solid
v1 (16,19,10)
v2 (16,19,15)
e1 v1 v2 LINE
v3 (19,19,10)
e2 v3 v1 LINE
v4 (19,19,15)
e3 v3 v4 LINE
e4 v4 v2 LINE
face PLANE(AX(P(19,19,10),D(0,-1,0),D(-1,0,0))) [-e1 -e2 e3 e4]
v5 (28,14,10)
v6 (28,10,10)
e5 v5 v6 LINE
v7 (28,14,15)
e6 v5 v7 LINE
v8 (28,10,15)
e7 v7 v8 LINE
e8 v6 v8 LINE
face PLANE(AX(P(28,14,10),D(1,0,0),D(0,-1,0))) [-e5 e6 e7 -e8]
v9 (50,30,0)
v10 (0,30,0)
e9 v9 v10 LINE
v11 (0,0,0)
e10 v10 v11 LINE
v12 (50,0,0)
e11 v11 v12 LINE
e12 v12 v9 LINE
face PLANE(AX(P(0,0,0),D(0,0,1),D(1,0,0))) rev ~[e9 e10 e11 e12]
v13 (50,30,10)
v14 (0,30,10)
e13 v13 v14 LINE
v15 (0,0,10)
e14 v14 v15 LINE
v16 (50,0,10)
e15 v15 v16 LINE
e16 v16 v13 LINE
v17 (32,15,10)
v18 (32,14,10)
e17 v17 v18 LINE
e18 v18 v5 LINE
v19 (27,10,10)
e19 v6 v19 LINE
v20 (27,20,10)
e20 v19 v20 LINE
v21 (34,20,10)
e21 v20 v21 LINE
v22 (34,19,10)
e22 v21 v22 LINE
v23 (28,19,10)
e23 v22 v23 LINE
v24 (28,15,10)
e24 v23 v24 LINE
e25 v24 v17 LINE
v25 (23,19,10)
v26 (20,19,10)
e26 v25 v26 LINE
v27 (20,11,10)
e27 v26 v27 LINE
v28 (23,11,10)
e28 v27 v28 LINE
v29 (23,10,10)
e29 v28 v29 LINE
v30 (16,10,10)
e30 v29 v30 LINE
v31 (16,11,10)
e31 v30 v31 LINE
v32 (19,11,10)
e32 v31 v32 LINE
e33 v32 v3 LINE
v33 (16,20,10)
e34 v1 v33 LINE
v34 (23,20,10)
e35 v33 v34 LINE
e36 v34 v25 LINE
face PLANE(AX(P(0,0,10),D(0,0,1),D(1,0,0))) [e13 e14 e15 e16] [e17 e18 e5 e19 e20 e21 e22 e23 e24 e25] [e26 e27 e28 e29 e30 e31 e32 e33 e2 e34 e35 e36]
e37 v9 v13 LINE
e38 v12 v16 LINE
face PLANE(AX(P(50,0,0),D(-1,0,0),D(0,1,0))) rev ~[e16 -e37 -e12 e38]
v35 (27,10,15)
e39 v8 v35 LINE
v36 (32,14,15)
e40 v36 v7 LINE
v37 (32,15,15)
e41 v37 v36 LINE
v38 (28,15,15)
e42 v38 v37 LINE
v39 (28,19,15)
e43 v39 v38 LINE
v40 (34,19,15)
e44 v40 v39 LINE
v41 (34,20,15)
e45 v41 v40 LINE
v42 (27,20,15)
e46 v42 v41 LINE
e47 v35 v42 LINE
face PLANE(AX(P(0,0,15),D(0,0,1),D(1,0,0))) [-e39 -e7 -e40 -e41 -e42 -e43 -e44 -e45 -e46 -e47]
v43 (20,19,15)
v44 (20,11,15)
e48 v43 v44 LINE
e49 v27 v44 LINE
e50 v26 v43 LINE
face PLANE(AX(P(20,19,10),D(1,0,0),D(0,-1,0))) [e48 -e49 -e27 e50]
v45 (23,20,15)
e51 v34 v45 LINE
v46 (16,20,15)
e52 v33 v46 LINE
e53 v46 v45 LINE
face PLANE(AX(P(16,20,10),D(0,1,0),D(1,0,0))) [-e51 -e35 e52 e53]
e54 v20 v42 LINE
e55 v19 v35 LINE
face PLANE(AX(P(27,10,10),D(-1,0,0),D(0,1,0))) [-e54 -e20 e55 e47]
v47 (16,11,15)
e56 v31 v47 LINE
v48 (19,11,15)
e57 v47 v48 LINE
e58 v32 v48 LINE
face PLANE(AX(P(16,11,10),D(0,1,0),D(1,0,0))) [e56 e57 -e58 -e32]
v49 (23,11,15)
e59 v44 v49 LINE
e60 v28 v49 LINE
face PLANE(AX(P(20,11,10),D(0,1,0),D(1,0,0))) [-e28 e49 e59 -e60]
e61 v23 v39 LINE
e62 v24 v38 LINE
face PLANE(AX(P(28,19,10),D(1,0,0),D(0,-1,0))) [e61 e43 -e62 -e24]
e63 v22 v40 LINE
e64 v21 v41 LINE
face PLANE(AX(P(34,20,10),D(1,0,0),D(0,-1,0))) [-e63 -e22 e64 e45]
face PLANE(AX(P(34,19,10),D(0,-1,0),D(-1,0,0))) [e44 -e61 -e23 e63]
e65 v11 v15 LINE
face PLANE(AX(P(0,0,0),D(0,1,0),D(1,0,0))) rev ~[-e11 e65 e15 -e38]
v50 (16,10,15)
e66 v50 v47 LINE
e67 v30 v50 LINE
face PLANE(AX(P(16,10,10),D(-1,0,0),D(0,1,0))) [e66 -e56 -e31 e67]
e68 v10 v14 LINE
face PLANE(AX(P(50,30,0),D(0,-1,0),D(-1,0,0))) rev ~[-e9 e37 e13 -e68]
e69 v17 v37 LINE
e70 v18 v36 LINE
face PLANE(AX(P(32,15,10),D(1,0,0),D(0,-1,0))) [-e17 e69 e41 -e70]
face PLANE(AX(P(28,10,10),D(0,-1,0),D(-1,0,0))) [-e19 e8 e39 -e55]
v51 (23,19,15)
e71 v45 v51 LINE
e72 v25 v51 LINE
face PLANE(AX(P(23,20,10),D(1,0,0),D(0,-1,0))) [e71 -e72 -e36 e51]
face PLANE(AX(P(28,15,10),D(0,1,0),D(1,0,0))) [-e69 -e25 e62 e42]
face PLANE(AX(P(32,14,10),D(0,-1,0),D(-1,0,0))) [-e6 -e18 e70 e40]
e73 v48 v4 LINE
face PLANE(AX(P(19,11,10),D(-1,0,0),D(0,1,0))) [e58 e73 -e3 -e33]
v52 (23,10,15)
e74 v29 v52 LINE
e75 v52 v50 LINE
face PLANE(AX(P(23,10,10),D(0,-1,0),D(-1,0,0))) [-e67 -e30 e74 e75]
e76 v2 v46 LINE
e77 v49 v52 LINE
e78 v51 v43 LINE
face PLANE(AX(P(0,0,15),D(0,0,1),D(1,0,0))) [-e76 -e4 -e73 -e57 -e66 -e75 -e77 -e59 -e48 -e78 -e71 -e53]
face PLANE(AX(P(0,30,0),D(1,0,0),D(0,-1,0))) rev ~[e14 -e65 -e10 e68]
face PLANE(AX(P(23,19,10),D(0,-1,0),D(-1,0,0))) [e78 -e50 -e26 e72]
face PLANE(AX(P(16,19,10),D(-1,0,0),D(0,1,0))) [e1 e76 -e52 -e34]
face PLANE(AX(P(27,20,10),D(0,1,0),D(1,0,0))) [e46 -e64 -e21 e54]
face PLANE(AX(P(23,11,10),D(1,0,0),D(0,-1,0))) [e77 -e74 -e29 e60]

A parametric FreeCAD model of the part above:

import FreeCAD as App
import Part
import Sketcher
from FreeCAD import Vector

doc = App.newDocument("Part")
body = doc.addObject("PartDesign::Body", "Body")

# Sketch on XY plane
sketch1 = body.newObject("Sketcher::SketchObject", "Sketch")
sketch1.AttachmentSupport = (doc.getObject("XY_Plane"), [""])
sketch1.MapMode = "FlatFace"
sketch1.addGeometry([
    Part.LineSegment(Vector(0, 30, 0), Vector(0, 0, 0)),
    Part.LineSegment(Vector(0, 0, 0), Vector(50, 0, 0)),
    Part.LineSegment(Vector(50, 0, 0), Vector(50, 30, 0)),
    Part.LineSegment(Vector(50, 30, 0), Vector(0, 30, 0)),
], False)
sketch1.addConstraint([
    Sketcher.Constraint("Coincident", 0, 2, 1, 1),
    Sketcher.Constraint("Coincident", 1, 2, 2, 1),
    Sketcher.Constraint("Coincident", 2, 2, 3, 1),
    Sketcher.Constraint("Coincident", 3, 2, 0, 1),
    Sketcher.Constraint("Vertical", 0),
    Sketcher.Constraint("Horizontal", 1),
    Sketcher.Constraint("Vertical", 2),
    Sketcher.Constraint("Horizontal", 3),
    Sketcher.Constraint("Coincident", 0, 2, -1, 1),
    Sketcher.Constraint("DistanceX", 1, 1, 1, 2, 50.0),
    Sketcher.Constraint("DistanceY", 0, 2, 0, 1, 30.0),
])
pad1 = body.newObject("PartDesign::Pad", "Pad")
pad1.Profile = sketch1
pad1.Length = 10

# Sketch on XY plane
sketch2 = body.newObject("Sketcher::SketchObject", "Sketch001")
sketch2.AttachmentSupport = (doc.getObject("XY_Plane"), [""])
sketch2.MapMode = "FlatFace"
sketch2.AttachmentOffset = App.Placement(Vector(0, 0, 10), App.Rotation())
sketch2.addGeometry([
    Part.LineSegment(Vector(23, 20, 0), Vector(16, 20, 0)),  # 0
    Part.LineSegment(Vector(16, 20, 0), Vector(16, 19, 0)),  # 1
    Part.LineSegment(Vector(16, 19, 0), Vector(19, 19, 0)),  # 2
    Part.LineSegment(Vector(19, 19, 0), Vector(19, 11, 0)),  # 3
    Part.LineSegment(Vector(19, 11, 0), Vector(16, 11, 0)),  # 4
    Part.LineSegment(Vector(16, 11, 0), Vector(16, 10, 0)),  # 5
    Part.LineSegment(Vector(16, 10, 0), Vector(23, 10, 0)),  # 6
    Part.LineSegment(Vector(23, 10, 0), Vector(23, 11, 0)),  # 7
    Part.LineSegment(Vector(23, 11, 0), Vector(20, 11, 0)),  # 8
    Part.LineSegment(Vector(20, 11, 0), Vector(20, 19, 0)),  # 9
    Part.LineSegment(Vector(20, 19, 0), Vector(23, 19, 0)),  # 10
    Part.LineSegment(Vector(23, 19, 0), Vector(23, 20, 0)),  # 11
    Part.LineSegment(Vector(27, 20, 0), Vector(27, 10, 0)),  # 12
    Part.LineSegment(Vector(27, 10, 0), Vector(28, 10, 0)),  # 13
    Part.LineSegment(Vector(28, 10, 0), Vector(28, 14, 0)),  # 14
    Part.LineSegment(Vector(28, 14, 0), Vector(32, 14, 0)),  # 15
    Part.LineSegment(Vector(32, 14, 0), Vector(32, 15, 0)),  # 16
    Part.LineSegment(Vector(32, 15, 0), Vector(28, 15, 0)),  # 17
    Part.LineSegment(Vector(28, 15, 0), Vector(28, 19, 0)),  # 18
    Part.LineSegment(Vector(28, 19, 0), Vector(34, 19, 0)),  # 19
    Part.LineSegment(Vector(34, 19, 0), Vector(34, 20, 0)),  # 20
    Part.LineSegment(Vector(34, 20, 0), Vector(27, 20, 0)),  # 21
], False)
sketch2.addConstraint([
    Sketcher.Constraint("Coincident", 0, 2, 1, 1),
    Sketcher.Constraint("Coincident", 1, 2, 2, 1),
    Sketcher.Constraint("Coincident", 2, 2, 3, 1),
    Sketcher.Constraint("Coincident", 3, 2, 4, 1),
    Sketcher.Constraint("Coincident", 4, 2, 5, 1),
    Sketcher.Constraint("Coincident", 5, 2, 6, 1),
    Sketcher.Constraint("Coincident", 6, 2, 7, 1),
    Sketcher.Constraint("Coincident", 7, 2, 8, 1),
    Sketcher.Constraint("Coincident", 8, 2, 9, 1),
    Sketcher.Constraint("Coincident", 9, 2, 10, 1),
    Sketcher.Constraint("Coincident", 10, 2, 11, 1),
    Sketcher.Constraint("Coincident", 11, 2, 0, 1),
    Sketcher.Constraint("Coincident", 12, 2, 13, 1),
    Sketcher.Constraint("Coincident", 13, 2, 14, 1),
    Sketcher.Constraint("Coincident", 14, 2, 15, 1),
    Sketcher.Constraint("Coincident", 15, 2, 16, 1),
    Sketcher.Constraint("Coincident", 16, 2, 17, 1),
    Sketcher.Constraint("Coincident", 17, 2, 18, 1),
    Sketcher.Constraint("Coincident", 18, 2, 19, 1),
    Sketcher.Constraint("Coincident", 19, 2, 20, 1),
    Sketcher.Constraint("Coincident", 20, 2, 21, 1),
    Sketcher.Constraint("Coincident", 21, 2, 12, 1),
    Sketcher.Constraint("Horizontal", 0),
    Sketcher.Constraint("Vertical", 1),
    Sketcher.Constraint("Horizontal", 2),
    Sketcher.Constraint("Vertical", 3),
    Sketcher.Constraint("Horizontal", 4),
    Sketcher.Constraint("Vertical", 5),
    Sketcher.Constraint("Horizontal", 6),
    Sketcher.Constraint("Vertical", 7),
    Sketcher.Constraint("Horizontal", 8),
    Sketcher.Constraint("Vertical", 9),
    Sketcher.Constraint("Horizontal", 10),
    Sketcher.Constraint("Vertical", 11),
    Sketcher.Constraint("Vertical", 12),
    Sketcher.Constraint("Horizontal", 13),
    Sketcher.Constraint("Vertical", 14),
    Sketcher.Constraint("Horizontal", 15),
    Sketcher.Constraint("Vertical", 16),
    Sketcher.Constraint("Horizontal", 17),
    Sketcher.Constraint("Vertical", 18),
    Sketcher.Constraint("Horizontal", 19),
    Sketcher.Constraint("Vertical", 20),
    Sketcher.Constraint("Horizontal", 21),
    Sketcher.Constraint("Horizontal", 4, 2, 7, 2),
    Sketcher.Constraint("Horizontal", 2, 2, 9, 2),
    Sketcher.Constraint("Horizontal", 6, 2, 12, 2),
    Sketcher.Constraint("Horizontal", 10, 2, 18, 2),
    Sketcher.Constraint("Horizontal", 11, 2, 20, 2),
    Sketcher.Constraint("Vertical", 1, 2, 4, 2),
    Sketcher.Constraint("Vertical", 7, 2, 10, 2),
    Sketcher.Constraint("Vertical", 14, 2, 17, 2),
    Sketcher.Constraint("Equal", 4, 8),
    Sketcher.Constraint("Equal", 6, 21),
    Sketcher.Constraint("Equal", 13, 1),
    Sketcher.Constraint("Equal", 1, 5),
    Sketcher.Constraint("Equal", 17, 14),
    Sketcher.Constraint("Equal", 11, 16),
    Sketcher.Constraint("Equal", 14, 18),
    Sketcher.Constraint("DistanceX", 0, 2, 0, 1, 7.0),
    Sketcher.Constraint("DistanceX", 2, 1, 2, 2, 3.0),
    Sketcher.Constraint("DistanceX", 13, 1, 13, 2, 1.0),
    Sketcher.Constraint("DistanceX", 15, 1, 15, 2, 4.0),
    Sketcher.Constraint("DistanceY", -1, 1, 5, 2, 10.0),
    Sketcher.Constraint("DistanceX", -1, 1, 6, 2, 23.0),
    Sketcher.Constraint("DistanceX", 6, 2, 12, 2, 4.0),
])
pad2 = body.newObject("PartDesign::Pad", "Pad001")
pad2.Profile = sketch2
pad2.Length = 5

doc.recompute()
